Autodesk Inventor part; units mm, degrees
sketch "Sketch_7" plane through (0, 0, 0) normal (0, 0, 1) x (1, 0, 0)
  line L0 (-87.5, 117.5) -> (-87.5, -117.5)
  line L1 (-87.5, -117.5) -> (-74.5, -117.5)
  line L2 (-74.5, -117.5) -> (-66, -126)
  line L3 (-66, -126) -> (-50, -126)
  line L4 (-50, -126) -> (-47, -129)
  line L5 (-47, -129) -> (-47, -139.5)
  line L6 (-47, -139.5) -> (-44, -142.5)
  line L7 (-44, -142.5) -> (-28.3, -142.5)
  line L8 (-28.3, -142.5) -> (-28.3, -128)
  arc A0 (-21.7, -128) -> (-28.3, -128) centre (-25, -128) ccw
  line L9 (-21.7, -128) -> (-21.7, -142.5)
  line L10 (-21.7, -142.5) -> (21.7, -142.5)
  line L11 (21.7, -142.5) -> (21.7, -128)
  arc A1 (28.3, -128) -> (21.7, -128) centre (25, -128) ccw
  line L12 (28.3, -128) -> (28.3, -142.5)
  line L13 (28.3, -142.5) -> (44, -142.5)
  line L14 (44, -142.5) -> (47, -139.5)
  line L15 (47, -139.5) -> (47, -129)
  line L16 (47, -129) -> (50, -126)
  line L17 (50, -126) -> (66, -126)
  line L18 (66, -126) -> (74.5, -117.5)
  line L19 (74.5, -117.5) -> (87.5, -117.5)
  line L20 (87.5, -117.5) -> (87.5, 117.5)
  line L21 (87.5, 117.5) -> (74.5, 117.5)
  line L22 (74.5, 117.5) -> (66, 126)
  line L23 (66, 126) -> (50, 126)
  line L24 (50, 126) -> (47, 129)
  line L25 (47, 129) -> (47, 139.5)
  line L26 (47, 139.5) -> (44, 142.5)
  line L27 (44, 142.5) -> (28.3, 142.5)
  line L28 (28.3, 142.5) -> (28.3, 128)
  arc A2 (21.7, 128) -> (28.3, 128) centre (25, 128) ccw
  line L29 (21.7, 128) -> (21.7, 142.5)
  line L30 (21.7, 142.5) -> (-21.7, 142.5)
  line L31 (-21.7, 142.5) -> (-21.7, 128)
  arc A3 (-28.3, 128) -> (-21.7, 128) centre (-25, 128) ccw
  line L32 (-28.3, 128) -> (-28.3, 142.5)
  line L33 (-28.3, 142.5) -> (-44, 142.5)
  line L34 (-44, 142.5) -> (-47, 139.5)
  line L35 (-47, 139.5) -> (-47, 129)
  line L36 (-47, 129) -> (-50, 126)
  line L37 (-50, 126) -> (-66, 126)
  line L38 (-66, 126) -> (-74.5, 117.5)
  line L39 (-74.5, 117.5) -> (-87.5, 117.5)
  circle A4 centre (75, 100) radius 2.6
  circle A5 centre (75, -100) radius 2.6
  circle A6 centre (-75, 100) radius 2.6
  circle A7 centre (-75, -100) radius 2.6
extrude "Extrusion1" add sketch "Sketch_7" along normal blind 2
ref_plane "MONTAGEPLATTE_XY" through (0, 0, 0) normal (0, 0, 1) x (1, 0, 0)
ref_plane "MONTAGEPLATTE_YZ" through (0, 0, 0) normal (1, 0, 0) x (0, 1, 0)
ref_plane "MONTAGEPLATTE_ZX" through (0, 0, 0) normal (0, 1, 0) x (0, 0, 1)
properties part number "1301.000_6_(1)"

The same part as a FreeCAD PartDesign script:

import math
import FreeCAD as App
import Part
import Sketcher
Q = App.Units.Quantity

doc = App.newDocument("Part")
body = doc.addObject("PartDesign::Body", "Body")

sketch1 = body.newObject("Sketcher::SketchObject", "Sketch")
sketch1.AttachmentSupport = (doc.getObject("XY_Plane"), [""])
sketch1.MapMode = "FlatFace"
sketch1.addGeometry([
    Part.LineSegment(App.Vector(-74.5, 117.5, 0), App.Vector(-87.5, 117.5, 0)),
    Part.LineSegment(App.Vector(-87.5, 117.5, 0), App.Vector(-87.5, -117.5, 0)),
    Part.LineSegment(App.Vector(-87.5, -117.5, 0), App.Vector(-74.5, -117.5, 0)),
    Part.LineSegment(App.Vector(-74.5, -117.5, 0), App.Vector(-66, -126, 0)),
    Part.LineSegment(App.Vector(-66, -126, 0), App.Vector(-50, -126, 0)),
    Part.LineSegment(App.Vector(-50, -126, 0), App.Vector(-47, -129, 0)),
    Part.LineSegment(App.Vector(-47, -129, 0), App.Vector(-47, -139.5, 0)),
    Part.LineSegment(App.Vector(-47, -139.5, 0), App.Vector(-44, -142.5, 0)),
    Part.LineSegment(App.Vector(-44, -142.5, 0), App.Vector(-28.3, -142.5, 0)),
    Part.LineSegment(App.Vector(-28.3, -142.5, 0), App.Vector(-28.3, -128, 0)),
    Part.ArcOfCircle(Part.Circle(App.Vector(-25, -128, 0), App.Vector(0, 0, 1), 3.3), math.radians(0), math.radians(180)),
    Part.LineSegment(App.Vector(-21.7, -128, 0), App.Vector(-21.7, -142.5, 0)),
    Part.LineSegment(App.Vector(-21.7, -142.5, 0), App.Vector(21.7, -142.5, 0)),
    Part.LineSegment(App.Vector(21.7, -142.5, 0), App.Vector(21.7, -128, 0)),
    Part.ArcOfCircle(Part.Circle(App.Vector(25, -128, 0), App.Vector(0, 0, 1), 3.3), math.radians(0), math.radians(180)),
    Part.LineSegment(App.Vector(28.3, -128, 0), App.Vector(28.3, -142.5, 0)),
    Part.LineSegment(App.Vector(28.3, -142.5, 0), App.Vector(44, -142.5, 0)),
    Part.LineSegment(App.Vector(44, -142.5, 0), App.Vector(47, -139.5, 0)),
    Part.LineSegment(App.Vector(47, -139.5, 0), App.Vector(47, -129, 0)),
    Part.LineSegment(App.Vector(47, -129, 0), App.Vector(50, -126, 0)),
    Part.LineSegment(App.Vector(50, -126, 0), App.Vector(66, -126, 0)),
    Part.LineSegment(App.Vector(66, -126, 0), App.Vector(74.5, -117.5, 0)),
    Part.LineSegment(App.Vector(74.5, -117.5, 0), App.Vector(87.5, -117.5, 0)),
    Part.LineSegment(App.Vector(87.5, -117.5, 0), App.Vector(87.5, 117.5, 0)),
    Part.LineSegment(App.Vector(87.5, 117.5, 0), App.Vector(74.5, 117.5, 0)),
    Part.LineSegment(App.Vector(74.5, 117.5, 0), App.Vector(66, 126, 0)),
    Part.LineSegment(App.Vector(66, 126, 0), App.Vector(50, 126, 0)),
    Part.LineSegment(App.Vector(50, 126, 0), App.Vector(47, 129, 0)),
    Part.LineSegment(App.Vector(47, 129, 0), App.Vector(47, 139.5, 0)),
    Part.LineSegment(App.Vector(47, 139.5, 0), App.Vector(44, 142.5, 0)),
    Part.LineSegment(App.Vector(44, 142.5, 0), App.Vector(28.3, 142.5, 0)),
    Part.LineSegment(App.Vector(28.3, 142.5, 0), App.Vector(28.3, 128, 0)),
    Part.ArcOfCircle(Part.Circle(App.Vector(25, 128, 0), App.Vector(0, 0, 1), 3.3), math.radians(180), math.radians(360)),
    Part.LineSegment(App.Vector(21.7, 128, 0), App.Vector(21.7, 142.5, 0)),
    Part.LineSegment(App.Vector(21.7, 142.5, 0), App.Vector(-21.7, 142.5, 0)),
    Part.LineSegment(App.Vector(-21.7, 142.5, 0), App.Vector(-21.7, 128, 0)),
    Part.ArcOfCircle(Part.Circle(App.Vector(-25, 128, 0), App.Vector(0, 0, 1), 3.3), math.radians(180), math.radians(360)),
    Part.LineSegment(App.Vector(-28.3, 128, 0), App.Vector(-28.3, 142.5, 0)),
    Part.LineSegment(App.Vector(-28.3, 142.5, 0), App.Vector(-44, 142.5, 0)),
    Part.LineSegment(App.Vector(-44, 142.5, 0), App.Vector(-47, 139.5, 0)),
    Part.LineSegment(App.Vector(-47, 139.5, 0), App.Vector(-47, 129, 0)),
    Part.LineSegment(App.Vector(-47, 129, 0), App.Vector(-50, 126, 0)),
    Part.LineSegment(App.Vector(-50, 126, 0), App.Vector(-66, 126, 0)),
    Part.LineSegment(App.Vector(-66, 126, 0), App.Vector(-74.5, 117.5, 0)),
    Part.Circle(App.Vector(-75, -100, 0), App.Vector(0, 0, 1), 2.6),
    Part.Circle(App.Vector(75, -100, 0), App.Vector(0, 0, 1), 2.6),
    Part.Circle(App.Vector(-75, 100, 0), App.Vector(0, 0, 1), 2.6),
    Part.Circle(App.Vector(75, 100, 0), App.Vector(0, 0, 1), 2.6),
], False)
sketch1.addConstraint([
    Sketcher.Constraint("Coincident", 0, 2, 1, 1),
    Sketcher.Constraint("Coincident", 1, 2, 2, 1),
    Sketcher.Constraint("Coincident", 2, 2, 3, 1),
    Sketcher.Constraint("Coincident", 3, 2, 4, 1),
    Sketcher.Constraint("Coincident", 4, 2, 5, 1),
    Sketcher.Constraint("Coincident", 5, 2, 6, 1),
    Sketcher.Constraint("Coincident", 6, 2, 7, 1),
    Sketcher.Constraint("Coincident", 7, 2, 8, 1),
    Sketcher.Constraint("Coincident", 8, 2, 9, 1),
    Sketcher.Constraint("Tangent", 9, 2, 10, 2),
    Sketcher.Constraint("Tangent", 10, 1, 11, 1),
    Sketcher.Constraint("Coincident", 11, 2, 12, 1),
    Sketcher.Constraint("Coincident", 12, 2, 13, 1),
    Sketcher.Constraint("Tangent", 13, 2, 14, 2),
    Sketcher.Constraint("Tangent", 14, 1, 15, 1),
    Sketcher.Constraint("Coincident", 15, 2, 16, 1),
    Sketcher.Constraint("Coincident", 16, 2, 17, 1),
    Sketcher.Constraint("Coincident", 17, 2, 18, 1),
    Sketcher.Constraint("Coincident", 18, 2, 19, 1),
    Sketcher.Constraint("Coincident", 19, 2, 20, 1),
    Sketcher.Constraint("Coincident", 20, 2, 21, 1),
    Sketcher.Constraint("Coincident", 21, 2, 22, 1),
    Sketcher.Constraint("Coincident", 22, 2, 23, 1),
    Sketcher.Constraint("Coincident", 23, 2, 24, 1),
    Sketcher.Constraint("Coincident", 24, 2, 25, 1),
    Sketcher.Constraint("Coincident", 25, 2, 26, 1),
    Sketcher.Constraint("Coincident", 26, 2, 27, 1),
    Sketcher.Constraint("Coincident", 27, 2, 28, 1),
    Sketcher.Constraint("Coincident", 28, 2, 29, 1),
    Sketcher.Constraint("Coincident", 29, 2, 30, 1),
    Sketcher.Constraint("Coincident", 30, 2, 31, 1),
    Sketcher.Constraint("Tangent", 31, 2, 32, 2),
    Sketcher.Constraint("Tangent", 32, 1, 33, 1),
    Sketcher.Constraint("Coincident", 33, 2, 34, 1),
    Sketcher.Constraint("Coincident", 34, 2, 35, 1),
    Sketcher.Constraint("Tangent", 35, 2, 36, 2),
    Sketcher.Constraint("Tangent", 36, 1, 37, 1),
    Sketcher.Constraint("Coincident", 37, 2, 38, 1),
    Sketcher.Constraint("Coincident", 38, 2, 39, 1),
    Sketcher.Constraint("Coincident", 39, 2, 40, 1),
    Sketcher.Constraint("Coincident", 40, 2, 41, 1),
    Sketcher.Constraint("Coincident", 41, 2, 42, 1),
    Sketcher.Constraint("Coincident", 42, 2, 43, 1),
    Sketcher.Constraint("Coincident", 43, 2, 0, 1),
    Sketcher.Constraint("Horizontal", 0),
    Sketcher.Constraint("Vertical", 1),
    Sketcher.Constraint("Horizontal", 2),
    Sketcher.Constraint("Horizontal", 4),
    Sketcher.Constraint("Vertical", 6),
    Sketcher.Constraint("Horizontal", 8),
    Sketcher.Constraint("Vertical", 9),
    Sketcher.Constraint("Vertical", 11),
    Sketcher.Constraint("Horizontal", 12),
    Sketcher.Constraint("Vertical", 13),
    Sketcher.Constraint("Vertical", 15),
    Sketcher.Constraint("Horizontal", 16),
    Sketcher.Constraint("Vertical", 18),
    Sketcher.Constraint("Horizontal", 20),
    Sketcher.Constraint("Horizontal", 22),
    Sketcher.Constraint("Vertical", 23),
    Sketcher.Constraint("Horizontal", 24),
    Sketcher.Constraint("Horizontal", 26),
    Sketcher.Constraint("Vertical", 28),
    Sketcher.Constraint("Horizontal", 30),
    Sketcher.Constraint("Vertical", 31),
    Sketcher.Constraint("Vertical", 33),
    Sketcher.Constraint("Horizontal", 34),
    Sketcher.Constraint("Vertical", 35),
    Sketcher.Constraint("Vertical", 37),
    Sketcher.Constraint("Horizontal", 38),
    Sketcher.Constraint("Vertical", 40),
    Sketcher.Constraint("Horizontal", 42),
    Sketcher.Constraint("Equal", 10, 14),
    Sketcher.Constraint("Equal", 14, 32),
    Sketcher.Constraint("Equal", 32, 36),
    Sketcher.Constraint("Equal", 44, 45),
    Sketcher.Constraint("Equal", 45, 46),
    Sketcher.Constraint("Equal", 46, 47),
    Sketcher.Constraint("Symmetric", 10, 3, 32, 3, -1, 1),
    Sketcher.Constraint("Symmetric", 14, 3, 36, 3, -1, 1),
    Sketcher.Constraint("Symmetric", 45, 3, 46, 3, -1, 1),
    Sketcher.Constraint("Symmetric", 44, 3, 47, 3, -1, 1),
    Sketcher.Constraint("Symmetric", 0, 2, 22, 2, -1, 1),
    Sketcher.Constraint("Symmetric", 2, 2, 24, 2, -1, 1),
    Sketcher.Constraint("Symmetric", 3, 2, 25, 2, -1, 1),
    Sketcher.Constraint("Symmetric", 5, 2, 27, 2, -1, 1),
    Sketcher.Constraint("Symmetric", 7, 2, 29, 2, -1, 1),
    Sketcher.Constraint("Symmetric", 16, 2, 38, 2, -1, 1),
    Sketcher.Constraint("Symmetric", 17, 2, 39, 2, -1, 1),
    Sketcher.Constraint("Symmetric", 19, 2, 41, 2, -1, 1),
    Sketcher.Constraint("Symmetric", 10, 3, 14, 3, -2),
    Sketcher.Constraint("Symmetric", 44, 3, 45, 3, -2),
    Sketcher.Constraint("Symmetric", 7, 2, 16, 2, -2),
    Sketcher.Constraint("Symmetric", 6, 2, 17, 2, -2),
    Sketcher.Constraint("Symmetric", 4, 2, 19, 2, -2),
    Sketcher.Constraint("Symmetric", 2, 2, 21, 2, -2),
    Sketcher.Constraint("Parallel", 3, 5),
    Sketcher.Constraint("Parallel", 5, 7),
    Sketcher.Constraint("Perpendicular", 7, 17),
    Sketcher.Constraint("Parallel", 17, 19),
    Sketcher.Constraint("Parallel", 19, 21),
    Sketcher.Constraint("Parallel", 25, 27),
    Sketcher.Constraint("Parallel", 27, 29),
    Sketcher.Constraint("Parallel", 39, 41),
    Sketcher.Constraint("Parallel", 41, 43),
    Sketcher.Constraint("Horizontal", 8, 2, 11, 2),
    Sketcher.Constraint("Horizontal", 30, 2, 33, 2),
    Sketcher.Constraint("Vertical", 3, 2, 42, 2),
    Sketcher.Constraint("Equal", 5, 7),
    Sketcher.Constraint("Diameter", 44, Q("5.2 mm")),
    Sketcher.Constraint("Radius", 10, Q("3.3 mm")),
    Sketcher.Constraint("DistanceX", 0, 2, 0, 1, Q("13 mm")),
    Sketcher.Constraint("DistanceX", 4, 1, 4, 2, Q("16 mm")),
    Sketcher.Constraint("DistanceY", 1, 2, 1, 1, Q("235 mm")),
    Sketcher.Constraint("DistanceX", 8, 1, 8, 2, Q("15.7 mm")),
    Sketcher.Constraint("DistanceX", 12, 1, 12, 2, Q("43.4 mm")),
    Sketcher.Constraint("DistanceY", 6, 2, 6, 1, Q("10.5 mm")),
    Sketcher.Constraint("DistanceY", 9, 1, 9, 2, Q("14.5 mm")),
    Sketcher.Constraint("DistanceY", 10, 3, -1, 1, Q("128 mm")),
    Sketcher.Constraint("DistanceX", 44, 3, -1, 1, Q("75 mm")),
    Sketcher.Constraint("DistanceY", 44, 3, -1, 1, Q("100 mm")),
    Sketcher.Constraint("DistanceX", 3, 2, -1, 1, Q("66 mm")),
])
pad1 = body.newObject("PartDesign::Pad", "Pad")
pad1.Profile = sketch1
pad1.Length = 2

doc.recompute()
